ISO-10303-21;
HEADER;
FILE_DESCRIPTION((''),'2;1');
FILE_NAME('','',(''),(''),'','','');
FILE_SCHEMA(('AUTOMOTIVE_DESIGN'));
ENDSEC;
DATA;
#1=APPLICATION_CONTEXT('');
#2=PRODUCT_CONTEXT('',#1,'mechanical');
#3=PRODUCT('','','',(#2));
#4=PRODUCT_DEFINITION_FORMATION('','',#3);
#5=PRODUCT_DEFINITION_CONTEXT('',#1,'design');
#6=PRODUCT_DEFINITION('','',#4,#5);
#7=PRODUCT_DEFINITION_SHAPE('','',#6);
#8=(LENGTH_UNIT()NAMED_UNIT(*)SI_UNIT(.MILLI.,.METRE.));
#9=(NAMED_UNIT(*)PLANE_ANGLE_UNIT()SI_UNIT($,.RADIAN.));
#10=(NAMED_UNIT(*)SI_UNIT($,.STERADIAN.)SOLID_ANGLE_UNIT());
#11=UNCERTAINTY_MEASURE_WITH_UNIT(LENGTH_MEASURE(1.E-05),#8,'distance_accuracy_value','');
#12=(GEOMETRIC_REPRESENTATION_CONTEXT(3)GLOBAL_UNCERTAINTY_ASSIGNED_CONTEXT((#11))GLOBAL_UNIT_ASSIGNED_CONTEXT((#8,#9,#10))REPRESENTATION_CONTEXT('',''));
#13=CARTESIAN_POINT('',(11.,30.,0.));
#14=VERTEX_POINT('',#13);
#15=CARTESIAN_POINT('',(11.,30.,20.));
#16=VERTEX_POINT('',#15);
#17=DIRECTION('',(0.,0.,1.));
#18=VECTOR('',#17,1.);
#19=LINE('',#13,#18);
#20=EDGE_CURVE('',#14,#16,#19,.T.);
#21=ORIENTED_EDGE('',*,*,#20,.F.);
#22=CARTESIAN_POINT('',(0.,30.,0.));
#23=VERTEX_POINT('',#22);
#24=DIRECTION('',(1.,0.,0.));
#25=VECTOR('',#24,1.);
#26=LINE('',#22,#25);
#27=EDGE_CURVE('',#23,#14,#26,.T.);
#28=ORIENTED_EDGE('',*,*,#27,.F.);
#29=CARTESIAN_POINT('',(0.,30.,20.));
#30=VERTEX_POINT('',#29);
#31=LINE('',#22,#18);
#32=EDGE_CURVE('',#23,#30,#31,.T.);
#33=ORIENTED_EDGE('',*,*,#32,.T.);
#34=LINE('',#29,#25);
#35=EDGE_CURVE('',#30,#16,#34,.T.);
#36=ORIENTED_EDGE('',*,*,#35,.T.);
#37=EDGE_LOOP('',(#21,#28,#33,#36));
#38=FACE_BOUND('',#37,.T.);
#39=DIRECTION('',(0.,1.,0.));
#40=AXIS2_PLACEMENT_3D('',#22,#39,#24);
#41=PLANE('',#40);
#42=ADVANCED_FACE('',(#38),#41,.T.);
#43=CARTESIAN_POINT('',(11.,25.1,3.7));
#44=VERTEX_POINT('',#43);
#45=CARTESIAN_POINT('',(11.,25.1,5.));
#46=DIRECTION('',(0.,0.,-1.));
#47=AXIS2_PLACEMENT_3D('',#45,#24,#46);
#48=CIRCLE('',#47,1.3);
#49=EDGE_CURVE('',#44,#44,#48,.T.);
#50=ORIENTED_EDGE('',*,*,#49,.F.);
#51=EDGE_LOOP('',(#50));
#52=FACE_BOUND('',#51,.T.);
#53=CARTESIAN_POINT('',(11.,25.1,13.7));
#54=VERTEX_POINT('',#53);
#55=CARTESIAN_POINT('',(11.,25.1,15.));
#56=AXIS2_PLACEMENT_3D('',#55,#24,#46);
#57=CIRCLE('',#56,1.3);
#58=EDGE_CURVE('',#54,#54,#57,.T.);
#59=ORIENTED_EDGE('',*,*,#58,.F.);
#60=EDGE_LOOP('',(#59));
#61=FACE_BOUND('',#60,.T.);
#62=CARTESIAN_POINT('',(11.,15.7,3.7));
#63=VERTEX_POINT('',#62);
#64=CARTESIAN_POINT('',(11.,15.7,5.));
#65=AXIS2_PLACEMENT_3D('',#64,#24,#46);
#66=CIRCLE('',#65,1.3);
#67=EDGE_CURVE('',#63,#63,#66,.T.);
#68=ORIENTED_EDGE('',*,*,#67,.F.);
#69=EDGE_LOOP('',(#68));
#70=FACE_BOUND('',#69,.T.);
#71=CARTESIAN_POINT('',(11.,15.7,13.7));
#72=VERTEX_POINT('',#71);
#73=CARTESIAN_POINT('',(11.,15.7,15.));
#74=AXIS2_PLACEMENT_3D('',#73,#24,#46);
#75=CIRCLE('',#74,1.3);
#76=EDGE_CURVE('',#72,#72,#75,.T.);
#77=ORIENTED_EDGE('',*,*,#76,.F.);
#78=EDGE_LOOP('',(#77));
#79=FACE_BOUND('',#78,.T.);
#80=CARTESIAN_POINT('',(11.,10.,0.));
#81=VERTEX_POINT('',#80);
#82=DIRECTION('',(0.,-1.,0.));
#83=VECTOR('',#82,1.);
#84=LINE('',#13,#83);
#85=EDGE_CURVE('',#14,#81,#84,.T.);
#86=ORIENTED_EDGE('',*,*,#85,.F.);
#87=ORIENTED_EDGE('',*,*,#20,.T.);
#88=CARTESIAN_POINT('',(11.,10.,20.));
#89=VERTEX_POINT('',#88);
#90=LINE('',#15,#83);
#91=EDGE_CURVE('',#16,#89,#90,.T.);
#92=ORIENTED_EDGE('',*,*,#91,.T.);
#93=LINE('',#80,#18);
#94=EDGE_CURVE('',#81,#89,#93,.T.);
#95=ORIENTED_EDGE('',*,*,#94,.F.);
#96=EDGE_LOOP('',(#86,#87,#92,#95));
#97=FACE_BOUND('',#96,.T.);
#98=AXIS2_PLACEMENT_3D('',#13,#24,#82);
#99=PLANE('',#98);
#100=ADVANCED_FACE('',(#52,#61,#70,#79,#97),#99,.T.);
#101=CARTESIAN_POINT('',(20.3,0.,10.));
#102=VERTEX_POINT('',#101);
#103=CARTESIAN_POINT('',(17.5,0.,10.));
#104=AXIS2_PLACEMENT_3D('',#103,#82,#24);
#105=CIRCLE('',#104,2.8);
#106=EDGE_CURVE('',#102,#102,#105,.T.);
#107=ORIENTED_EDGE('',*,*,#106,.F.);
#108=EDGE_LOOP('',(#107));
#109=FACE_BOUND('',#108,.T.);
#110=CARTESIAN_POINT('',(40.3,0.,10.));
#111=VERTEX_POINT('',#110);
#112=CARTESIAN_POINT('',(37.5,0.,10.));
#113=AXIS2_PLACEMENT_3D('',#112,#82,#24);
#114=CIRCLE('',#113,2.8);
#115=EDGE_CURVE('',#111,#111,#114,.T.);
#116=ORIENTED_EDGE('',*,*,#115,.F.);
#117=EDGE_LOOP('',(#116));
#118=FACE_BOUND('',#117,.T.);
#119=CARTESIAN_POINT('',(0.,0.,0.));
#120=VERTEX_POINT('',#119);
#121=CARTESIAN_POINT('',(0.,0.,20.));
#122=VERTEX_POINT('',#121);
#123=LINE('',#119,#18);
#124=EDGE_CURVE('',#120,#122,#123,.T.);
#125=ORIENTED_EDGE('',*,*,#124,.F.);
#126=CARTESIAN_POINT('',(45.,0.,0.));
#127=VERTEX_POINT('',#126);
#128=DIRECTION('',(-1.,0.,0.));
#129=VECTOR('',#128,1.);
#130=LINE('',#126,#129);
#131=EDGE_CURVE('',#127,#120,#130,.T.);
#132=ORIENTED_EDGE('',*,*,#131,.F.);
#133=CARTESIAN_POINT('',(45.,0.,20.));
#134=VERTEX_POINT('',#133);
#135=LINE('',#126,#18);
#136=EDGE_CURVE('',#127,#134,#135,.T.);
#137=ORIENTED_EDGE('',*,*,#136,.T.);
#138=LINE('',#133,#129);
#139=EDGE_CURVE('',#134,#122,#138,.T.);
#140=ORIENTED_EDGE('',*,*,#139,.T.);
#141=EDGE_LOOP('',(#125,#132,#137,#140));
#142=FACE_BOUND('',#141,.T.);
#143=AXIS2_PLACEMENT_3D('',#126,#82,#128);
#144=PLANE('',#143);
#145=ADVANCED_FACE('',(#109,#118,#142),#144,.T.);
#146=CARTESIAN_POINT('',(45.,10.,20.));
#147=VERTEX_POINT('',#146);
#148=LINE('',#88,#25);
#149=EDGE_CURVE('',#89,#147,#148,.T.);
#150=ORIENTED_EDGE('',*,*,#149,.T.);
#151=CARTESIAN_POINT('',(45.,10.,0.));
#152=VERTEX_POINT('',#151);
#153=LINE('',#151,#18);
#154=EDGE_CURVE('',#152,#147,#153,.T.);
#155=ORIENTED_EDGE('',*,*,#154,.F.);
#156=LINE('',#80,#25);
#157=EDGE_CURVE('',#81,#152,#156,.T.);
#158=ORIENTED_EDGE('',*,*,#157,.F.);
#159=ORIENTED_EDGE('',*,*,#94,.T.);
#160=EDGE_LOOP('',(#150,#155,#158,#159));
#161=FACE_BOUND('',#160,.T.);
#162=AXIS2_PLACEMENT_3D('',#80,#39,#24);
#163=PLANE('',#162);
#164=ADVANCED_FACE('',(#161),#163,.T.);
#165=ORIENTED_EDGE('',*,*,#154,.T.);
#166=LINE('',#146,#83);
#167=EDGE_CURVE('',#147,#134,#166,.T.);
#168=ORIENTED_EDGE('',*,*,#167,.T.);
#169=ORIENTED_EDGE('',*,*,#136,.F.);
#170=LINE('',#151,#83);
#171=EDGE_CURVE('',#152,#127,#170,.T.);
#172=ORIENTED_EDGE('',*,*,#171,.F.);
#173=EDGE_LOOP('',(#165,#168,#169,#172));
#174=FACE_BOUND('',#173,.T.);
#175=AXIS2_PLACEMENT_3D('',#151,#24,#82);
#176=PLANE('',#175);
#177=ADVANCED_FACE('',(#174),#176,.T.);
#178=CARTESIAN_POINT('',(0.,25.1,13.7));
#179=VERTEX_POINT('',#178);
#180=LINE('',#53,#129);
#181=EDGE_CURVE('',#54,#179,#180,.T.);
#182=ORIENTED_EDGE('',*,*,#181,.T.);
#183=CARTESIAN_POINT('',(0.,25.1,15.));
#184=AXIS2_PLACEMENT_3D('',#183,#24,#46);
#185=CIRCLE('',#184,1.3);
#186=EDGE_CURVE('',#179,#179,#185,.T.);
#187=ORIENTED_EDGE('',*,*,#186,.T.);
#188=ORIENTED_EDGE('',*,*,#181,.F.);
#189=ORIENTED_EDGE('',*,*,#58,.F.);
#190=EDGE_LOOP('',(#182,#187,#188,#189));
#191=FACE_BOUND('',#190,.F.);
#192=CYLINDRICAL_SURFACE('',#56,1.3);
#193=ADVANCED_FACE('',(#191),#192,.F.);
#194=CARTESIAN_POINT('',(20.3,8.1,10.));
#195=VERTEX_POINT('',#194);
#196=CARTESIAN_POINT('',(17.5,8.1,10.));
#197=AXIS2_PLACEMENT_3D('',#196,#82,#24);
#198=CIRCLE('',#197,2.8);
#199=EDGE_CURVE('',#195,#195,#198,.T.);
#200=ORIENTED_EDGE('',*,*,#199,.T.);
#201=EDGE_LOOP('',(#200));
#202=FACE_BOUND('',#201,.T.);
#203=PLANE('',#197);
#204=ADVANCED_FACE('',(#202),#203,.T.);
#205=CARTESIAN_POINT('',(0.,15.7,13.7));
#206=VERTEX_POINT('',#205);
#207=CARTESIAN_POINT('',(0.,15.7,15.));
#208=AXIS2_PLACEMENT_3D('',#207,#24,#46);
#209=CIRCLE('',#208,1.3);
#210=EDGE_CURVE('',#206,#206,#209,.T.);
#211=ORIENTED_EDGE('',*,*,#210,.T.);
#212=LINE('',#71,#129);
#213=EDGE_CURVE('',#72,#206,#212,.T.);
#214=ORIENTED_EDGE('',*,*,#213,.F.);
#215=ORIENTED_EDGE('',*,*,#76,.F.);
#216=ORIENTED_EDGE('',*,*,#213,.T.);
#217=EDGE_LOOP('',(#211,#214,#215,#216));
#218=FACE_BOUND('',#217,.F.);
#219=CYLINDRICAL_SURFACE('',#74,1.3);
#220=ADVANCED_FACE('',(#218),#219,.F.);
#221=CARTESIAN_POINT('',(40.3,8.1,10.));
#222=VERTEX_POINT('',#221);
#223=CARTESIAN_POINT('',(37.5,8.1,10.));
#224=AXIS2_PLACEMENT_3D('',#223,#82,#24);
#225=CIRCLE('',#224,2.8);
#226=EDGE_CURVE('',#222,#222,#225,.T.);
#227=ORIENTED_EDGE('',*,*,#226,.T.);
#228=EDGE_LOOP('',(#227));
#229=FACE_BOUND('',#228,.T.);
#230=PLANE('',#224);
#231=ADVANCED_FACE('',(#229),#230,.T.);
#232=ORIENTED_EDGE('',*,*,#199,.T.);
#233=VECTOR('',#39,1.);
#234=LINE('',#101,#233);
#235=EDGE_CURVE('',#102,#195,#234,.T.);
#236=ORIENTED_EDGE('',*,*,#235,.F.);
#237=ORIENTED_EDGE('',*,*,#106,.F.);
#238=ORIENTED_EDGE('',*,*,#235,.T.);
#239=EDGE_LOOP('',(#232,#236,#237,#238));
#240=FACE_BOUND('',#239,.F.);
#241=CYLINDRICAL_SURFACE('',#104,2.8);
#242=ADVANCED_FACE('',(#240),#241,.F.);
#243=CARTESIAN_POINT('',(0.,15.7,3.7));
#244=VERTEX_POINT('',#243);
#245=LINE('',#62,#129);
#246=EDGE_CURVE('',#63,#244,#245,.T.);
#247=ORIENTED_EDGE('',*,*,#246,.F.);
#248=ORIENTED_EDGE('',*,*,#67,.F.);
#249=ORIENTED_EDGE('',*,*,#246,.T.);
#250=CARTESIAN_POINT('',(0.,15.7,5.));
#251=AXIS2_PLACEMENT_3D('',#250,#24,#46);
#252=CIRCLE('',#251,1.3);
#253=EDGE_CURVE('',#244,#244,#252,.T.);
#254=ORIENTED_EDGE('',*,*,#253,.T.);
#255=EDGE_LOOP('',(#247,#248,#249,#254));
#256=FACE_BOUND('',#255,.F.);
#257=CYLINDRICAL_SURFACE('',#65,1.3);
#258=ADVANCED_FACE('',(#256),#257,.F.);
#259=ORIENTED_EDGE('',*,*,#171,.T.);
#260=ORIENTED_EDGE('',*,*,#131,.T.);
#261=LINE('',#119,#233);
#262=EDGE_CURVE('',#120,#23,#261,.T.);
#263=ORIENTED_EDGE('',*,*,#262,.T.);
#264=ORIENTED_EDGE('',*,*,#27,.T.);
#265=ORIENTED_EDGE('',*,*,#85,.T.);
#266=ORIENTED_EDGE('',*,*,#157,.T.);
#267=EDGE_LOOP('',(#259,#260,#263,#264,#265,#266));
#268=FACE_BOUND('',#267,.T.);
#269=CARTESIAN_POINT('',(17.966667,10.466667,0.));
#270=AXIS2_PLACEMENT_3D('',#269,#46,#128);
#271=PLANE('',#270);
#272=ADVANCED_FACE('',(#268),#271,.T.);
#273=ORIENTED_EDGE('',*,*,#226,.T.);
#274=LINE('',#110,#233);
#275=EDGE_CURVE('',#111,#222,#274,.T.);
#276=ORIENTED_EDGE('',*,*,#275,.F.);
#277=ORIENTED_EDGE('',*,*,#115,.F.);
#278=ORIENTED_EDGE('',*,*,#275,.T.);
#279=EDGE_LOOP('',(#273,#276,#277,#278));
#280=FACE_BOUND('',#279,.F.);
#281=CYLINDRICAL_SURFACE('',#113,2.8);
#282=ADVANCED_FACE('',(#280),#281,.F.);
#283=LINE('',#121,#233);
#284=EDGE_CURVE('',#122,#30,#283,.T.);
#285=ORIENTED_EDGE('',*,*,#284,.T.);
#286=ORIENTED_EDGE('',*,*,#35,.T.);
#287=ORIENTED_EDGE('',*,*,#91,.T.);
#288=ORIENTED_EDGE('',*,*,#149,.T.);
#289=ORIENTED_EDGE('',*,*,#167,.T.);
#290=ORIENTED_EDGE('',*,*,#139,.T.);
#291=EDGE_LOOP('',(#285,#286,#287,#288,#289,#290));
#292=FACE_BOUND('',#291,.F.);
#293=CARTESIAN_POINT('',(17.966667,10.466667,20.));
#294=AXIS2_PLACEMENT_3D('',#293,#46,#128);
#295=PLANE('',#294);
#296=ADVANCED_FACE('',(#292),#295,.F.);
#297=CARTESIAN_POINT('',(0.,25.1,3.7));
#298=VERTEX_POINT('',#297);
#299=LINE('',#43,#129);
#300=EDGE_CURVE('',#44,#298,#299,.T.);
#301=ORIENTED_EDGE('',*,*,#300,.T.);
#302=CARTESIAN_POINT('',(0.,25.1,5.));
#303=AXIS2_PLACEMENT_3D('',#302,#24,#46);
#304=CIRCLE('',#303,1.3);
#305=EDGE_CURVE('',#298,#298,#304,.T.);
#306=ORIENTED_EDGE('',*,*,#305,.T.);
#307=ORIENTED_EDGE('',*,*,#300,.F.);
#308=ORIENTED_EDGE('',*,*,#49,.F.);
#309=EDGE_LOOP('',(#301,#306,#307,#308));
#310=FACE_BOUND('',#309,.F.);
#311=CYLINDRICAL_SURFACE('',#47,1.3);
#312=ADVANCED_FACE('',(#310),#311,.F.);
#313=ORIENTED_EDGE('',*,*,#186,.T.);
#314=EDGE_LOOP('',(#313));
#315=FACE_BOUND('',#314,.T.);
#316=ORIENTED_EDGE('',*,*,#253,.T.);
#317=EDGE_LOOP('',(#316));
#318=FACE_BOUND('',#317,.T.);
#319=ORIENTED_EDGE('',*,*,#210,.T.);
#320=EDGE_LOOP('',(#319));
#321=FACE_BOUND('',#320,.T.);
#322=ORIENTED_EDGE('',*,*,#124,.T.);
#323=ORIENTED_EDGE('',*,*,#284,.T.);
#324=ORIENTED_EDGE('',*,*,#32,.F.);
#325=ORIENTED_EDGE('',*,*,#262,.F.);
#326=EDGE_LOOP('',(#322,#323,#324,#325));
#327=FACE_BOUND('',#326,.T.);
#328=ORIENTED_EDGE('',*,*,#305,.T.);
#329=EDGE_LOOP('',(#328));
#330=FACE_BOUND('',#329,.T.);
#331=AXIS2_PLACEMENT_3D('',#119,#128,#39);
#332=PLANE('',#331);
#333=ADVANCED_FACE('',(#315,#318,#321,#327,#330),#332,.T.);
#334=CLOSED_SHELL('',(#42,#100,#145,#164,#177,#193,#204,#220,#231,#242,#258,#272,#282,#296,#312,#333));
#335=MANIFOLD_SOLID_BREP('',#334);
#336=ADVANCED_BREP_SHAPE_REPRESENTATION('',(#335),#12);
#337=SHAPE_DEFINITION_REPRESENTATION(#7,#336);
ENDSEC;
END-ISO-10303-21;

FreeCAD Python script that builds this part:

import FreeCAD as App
import Part
import Sketcher

doc = App.newDocument("Part")
params = doc.addObject("Spreadsheet::Sheet", "Params")
for row, (alias, value) in enumerate([
    ("sketch1_width", "45 mm"),
    ("sketch1_width2", "34 mm"),
    ("sketch1_height", "30 mm"),
    ("sketch1_height2", "10 mm"),
    ("pad1_length", "20 mm"),
    ("sketch2_diameter", "5.6 mm"),
    ("pocket1_length", "8.1 mm"),
    ("sketch3_diameter", "2.6 mm"),
    ("sketch4_diameter", "2.6 mm"),
    ("sketch5_diameter", "2.6 mm"),
    ("sketch6_diameter", "2.6 mm"),
], start=1):
    params.set(f"A{row}", alias)
    params.set(f"B{row}", "=" + value)
    params.setAlias(f"B{row}", alias)

body = doc.addObject("PartDesign::Body", "Body")

# Sketch on XY plane
sketch1 = body.newObject("Sketcher::SketchObject", "Sketch")
sketch1.AttachmentSupport = (doc.getObject("XY_Plane"), [""])
sketch1.MapMode = "FlatFace"
sketch1.addGeometry(Part.LineSegment(App.Vector(0, 30, 0), App.Vector(0, 0, 0)), False)
sketch1.addGeometry(Part.LineSegment(App.Vector(0, 0, 0), App.Vector(45, 0, 0)), False)
sketch1.addGeometry(Part.LineSegment(App.Vector(45, 0, 0), App.Vector(45, 10, 0)), False)
sketch1.addGeometry(Part.LineSegment(App.Vector(45, 10, 0), App.Vector(11, 10, 0)), False)
sketch1.addGeometry(Part.LineSegment(App.Vector(11, 10, 0), App.Vector(11, 30, 0)), False)
sketch1.addGeometry(Part.LineSegment(App.Vector(11, 30, 0), App.Vector(0, 30, 0)), False)
sketch1.addConstraint(Sketcher.Constraint("Coincident", 0, 2, 1, 1))
sketch1.addConstraint(Sketcher.Constraint("Coincident", 1, 2, 2, 1))
sketch1.addConstraint(Sketcher.Constraint("Coincident", 2, 2, 3, 1))
sketch1.addConstraint(Sketcher.Constraint("Coincident", 3, 2, 4, 1))
sketch1.addConstraint(Sketcher.Constraint("Coincident", 4, 2, 5, 1))
sketch1.addConstraint(Sketcher.Constraint("Coincident", 5, 2, 0, 1))
sketch1.addConstraint(Sketcher.Constraint("Vertical", 0))
sketch1.addConstraint(Sketcher.Constraint("Horizontal", 1))
sketch1.addConstraint(Sketcher.Constraint("Vertical", 2))
sketch1.addConstraint(Sketcher.Constraint("Horizontal", 3))
sketch1.addConstraint(Sketcher.Constraint("Vertical", 4))
sketch1.addConstraint(Sketcher.Constraint("Horizontal", 5))
sketch1.addConstraint(Sketcher.Constraint("Coincident", 0, 2, -1, 1))
sketch1.addConstraint(Sketcher.Constraint("DistanceX", 1, 1, 1, 2, 45.0))
sketch1.addConstraint(Sketcher.Constraint("DistanceX", 3, 2, 3, 1, 34.0))
sketch1.addConstraint(Sketcher.Constraint("DistanceY", 0, 2, 0, 1, 30.0))
sketch1.addConstraint(Sketcher.Constraint("DistanceY", 2, 1, 2, 2, 10.0))
sketch1.setExpression("Constraints[13]", "Params.sketch1_width")
sketch1.setExpression("Constraints[14]", "Params.sketch1_width2")
sketch1.setExpression("Constraints[15]", "Params.sketch1_height")
sketch1.setExpression("Constraints[16]", "Params.sketch1_height2")
pad1 = body.newObject("PartDesign::Pad", "Pad")
pad1.Profile = sketch1
pad1.setExpression("Length", "Params.pad1_length")

# Sketch on XZ plane
sketch2 = body.newObject("Sketcher::SketchObject", "Sketch001")
sketch2.AttachmentSupport = (doc.getObject("XZ_Plane"), [""])
sketch2.MapMode = "FlatFace"
sketch2.addGeometry(Part.Circle(App.Vector(17.5, 10, 0), App.Vector(0, 0, 1), 2.8), False)
sketch2.addGeometry(Part.Circle(App.Vector(37.5, 10, 0), App.Vector(0, 0, 1), 2.8), False)
sketch2.addConstraint(Sketcher.Constraint("Equal", 0, 1))
sketch2.addConstraint(Sketcher.Constraint("Horizontal", 0, 3, 1, 3))
sketch2.addConstraint(Sketcher.Constraint("Diameter", 0, 5.6))
sketch2.addConstraint(Sketcher.Constraint("DistanceY", -1, 1, 0, 3, 10.0))
sketch2.addConstraint(Sketcher.Constraint("DistanceX", 0, 3, 1, 3, 20.0))
sketch2.addConstraint(Sketcher.Constraint("DistanceX", -1, 1, 0, 3, 17.5))
sketch2.setExpression("Constraints[2]", "Params.sketch2_diameter")
pocket1 = body.newObject("PartDesign::Pocket", "Pocket")
pocket1.Profile = sketch2
pocket1.setExpression("Length", "Params.pocket1_length")

# Sketch on YZ plane
sketch3 = body.newObject("Sketcher::SketchObject", "Sketch002")
sketch3.AttachmentSupport = (doc.getObject("YZ_Plane"), [""])
sketch3.MapMode = "FlatFace"
sketch3.AttachmentOffset = App.Placement(App.Vector(0, 0, 11), App.Rotation())
sketch3.addGeometry(Part.Circle(App.Vector(25.1, 15, 0), App.Vector(0, 0, 1), 1.3), False)
sketch3.addConstraint(Sketcher.Constraint("Diameter", 0, 2.6))
sketch3.addConstraint(Sketcher.Constraint("DistanceY", -1, 1, 0, 3, 15.0))
sketch3.addConstraint(Sketcher.Constraint("DistanceX", -1, 1, 0, 3, 25.1))
sketch3.setExpression("Constraints[0]", "Params.sketch3_diameter")
pocket2 = body.newObject("PartDesign::Pocket", "Pocket001")
pocket2.Profile = sketch3
pocket2.Type = "UpToFirst"

# Sketch on YZ plane
sketch4 = body.newObject("Sketcher::SketchObject", "Sketch003")
sketch4.AttachmentSupport = (doc.getObject("YZ_Plane"), [""])
sketch4.MapMode = "FlatFace"
sketch4.AttachmentOffset = App.Placement(App.Vector(0, 0, 11), App.Rotation())
sketch4.addGeometry(Part.Circle(App.Vector(25.1, 5, 0), App.Vector(0, 0, 1), 1.3), False)
sketch4.addConstraint(Sketcher.Constraint("Diameter", 0, 2.6))
sketch4.addConstraint(Sketcher.Constraint("DistanceY", -1, 1, 0, 3, 5.0))
sketch4.addConstraint(Sketcher.Constraint("DistanceX", -1, 1, 0, 3, 25.1))
sketch4.setExpression("Constraints[0]", "Params.sketch4_diameter")
pocket3 = body.newObject("PartDesign::Pocket", "Pocket002")
pocket3.Profile = sketch4
pocket3.Type = "UpToFirst"

# Sketch on YZ plane
sketch5 = body.newObject("Sketcher::SketchObject", "Sketch004")
sketch5.AttachmentSupport = (doc.getObject("YZ_Plane"), [""])
sketch5.MapMode = "FlatFace"
sketch5.AttachmentOffset = App.Placement(App.Vector(0, 0, 11), App.Rotation())
sketch5.addGeometry(Part.Circle(App.Vector(15.7, 5, 0), App.Vector(0, 0, 1), 1.3), False)
sketch5.addConstraint(Sketcher.Constraint("Diameter", 0, 2.6))
sketch5.addConstraint(Sketcher.Constraint("DistanceY", -1, 1, 0, 3, 5.0))
sketch5.addConstraint(Sketcher.Constraint("DistanceX", -1, 1, 0, 3, 15.7))
sketch5.setExpression("Constraints[0]", "Params.sketch5_diameter")
pocket4 = body.newObject("PartDesign::Pocket", "Pocket003")
pocket4.Profile = sketch5
pocket4.Type = "UpToFirst"

# Sketch on YZ plane
sketch6 = body.newObject("Sketcher::SketchObject", "Sketch005")
sketch6.AttachmentSupport = (doc.getObject("YZ_Plane"), [""])
sketch6.MapMode = "FlatFace"
sketch6.AttachmentOffset = App.Placement(App.Vector(0, 0, 11), App.Rotation())
sketch6.addGeometry(Part.Circle(App.Vector(15.7, 15, 0), App.Vector(0, 0, 1), 1.3), False)
sketch6.addConstraint(Sketcher.Constraint("Diameter", 0, 2.6))
sketch6.addConstraint(Sketcher.Constraint("DistanceY", -1, 1, 0, 3, 15.0))
sketch6.addConstraint(Sketcher.Constraint("DistanceX", -1, 1, 0, 3, 15.7))
sketch6.setExpression("Constraints[0]", "Params.sketch6_diameter")
pocket5 = body.newObject("PartDesign::Pocket", "Pocket004")
pocket5.Profile = sketch6
pocket5.Type = "UpToFirst"

doc.recompute()
